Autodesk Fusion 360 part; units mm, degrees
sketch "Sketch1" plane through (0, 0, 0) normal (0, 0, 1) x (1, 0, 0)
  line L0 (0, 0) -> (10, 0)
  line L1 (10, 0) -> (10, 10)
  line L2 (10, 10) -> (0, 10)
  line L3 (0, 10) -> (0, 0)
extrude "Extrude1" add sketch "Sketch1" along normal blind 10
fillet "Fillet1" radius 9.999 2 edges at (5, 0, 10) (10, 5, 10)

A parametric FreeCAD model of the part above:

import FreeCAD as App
import Part
import Sketcher
Q = App.Units.Quantity


def edges_at(feature, points):
    """Names of the edges that pass closest to the given points."""
    edges = feature.Shape.Edges
    near = lambda p: min(range(len(edges)), key=lambda i: edges[i].distToShape(Part.Vertex(*p))[0])
    return sorted({f"Edge{near(p) + 1}" for p in points})


def add_polygon(sketch, points):
    """Adds a closed chain of lines whose ends are joined by coincident constraints."""
    first, n = sketch.GeometryCount, len(points)
    for a, b in zip(points, points[1:] + points[:1]):
        sketch.addGeometry(Part.LineSegment(App.Vector(*a, 0), App.Vector(*b, 0)), False)
    for i in range(n):
        sketch.addConstraint(Sketcher.Constraint("Coincident", first + i, 2, first + (i + 1) % n, 1))

doc = App.newDocument("Part")
params = doc.addObject("Spreadsheet::Sheet", "Params")
for row, (alias, value) in enumerate([
    ("sketch1_width", "10 mm"),
    ("pad1_length", "10 mm"),
    ("fillet_radius", "9.999 mm"),
], start=1):
    params.set(f"A{row}", alias)
    params.set(f"B{row}", "=" + value)
    params.setAlias(f"B{row}", alias)

body = doc.addObject("PartDesign::Body", "Body")

# Sketch on XY plane
sketch1 = doc.addObject("Sketcher::SketchObject", "Sketch")
body.addObject(sketch1)
sketch1.AttachmentSupport = (doc.XY_Plane, [""])
sketch1.MapMode = "FlatFace"
add_polygon(sketch1, [(0, 10), (0, 0), (10, 0), (10, 10)])  # lines 0-3
sketch1.addConstraint([
    Sketcher.Constraint("Vertical", 0),
    Sketcher.Constraint("Horizontal", 1),
    Sketcher.Constraint("Vertical", 2),
    Sketcher.Constraint("Horizontal", 3),
    Sketcher.Constraint("Coincident", 0, 2, -1, 1),
    Sketcher.Constraint("Equal", 3, 0),
    Sketcher.Constraint("DistanceX", 1, 1, 1, 2, Q("10 mm")),
])
sketch1.setExpression("Constraints[10]", "Params.sketch1_width")
pad1 = doc.addObject("PartDesign::Pad", "Pad")
body.addObject(pad1)
pad1.Profile = sketch1
pad1.setExpression("Length", "Params.pad1_length")
doc.recompute()

fillet = doc.addObject("PartDesign::Fillet", "Fillet")
body.addObject(fillet)
fillet.Base = (pad1, edges_at(pad1, [(5, 0, 10), (10, 5, 10)]))
fillet.setExpression("Radius", "Params.fillet_radius")

doc.recompute()
